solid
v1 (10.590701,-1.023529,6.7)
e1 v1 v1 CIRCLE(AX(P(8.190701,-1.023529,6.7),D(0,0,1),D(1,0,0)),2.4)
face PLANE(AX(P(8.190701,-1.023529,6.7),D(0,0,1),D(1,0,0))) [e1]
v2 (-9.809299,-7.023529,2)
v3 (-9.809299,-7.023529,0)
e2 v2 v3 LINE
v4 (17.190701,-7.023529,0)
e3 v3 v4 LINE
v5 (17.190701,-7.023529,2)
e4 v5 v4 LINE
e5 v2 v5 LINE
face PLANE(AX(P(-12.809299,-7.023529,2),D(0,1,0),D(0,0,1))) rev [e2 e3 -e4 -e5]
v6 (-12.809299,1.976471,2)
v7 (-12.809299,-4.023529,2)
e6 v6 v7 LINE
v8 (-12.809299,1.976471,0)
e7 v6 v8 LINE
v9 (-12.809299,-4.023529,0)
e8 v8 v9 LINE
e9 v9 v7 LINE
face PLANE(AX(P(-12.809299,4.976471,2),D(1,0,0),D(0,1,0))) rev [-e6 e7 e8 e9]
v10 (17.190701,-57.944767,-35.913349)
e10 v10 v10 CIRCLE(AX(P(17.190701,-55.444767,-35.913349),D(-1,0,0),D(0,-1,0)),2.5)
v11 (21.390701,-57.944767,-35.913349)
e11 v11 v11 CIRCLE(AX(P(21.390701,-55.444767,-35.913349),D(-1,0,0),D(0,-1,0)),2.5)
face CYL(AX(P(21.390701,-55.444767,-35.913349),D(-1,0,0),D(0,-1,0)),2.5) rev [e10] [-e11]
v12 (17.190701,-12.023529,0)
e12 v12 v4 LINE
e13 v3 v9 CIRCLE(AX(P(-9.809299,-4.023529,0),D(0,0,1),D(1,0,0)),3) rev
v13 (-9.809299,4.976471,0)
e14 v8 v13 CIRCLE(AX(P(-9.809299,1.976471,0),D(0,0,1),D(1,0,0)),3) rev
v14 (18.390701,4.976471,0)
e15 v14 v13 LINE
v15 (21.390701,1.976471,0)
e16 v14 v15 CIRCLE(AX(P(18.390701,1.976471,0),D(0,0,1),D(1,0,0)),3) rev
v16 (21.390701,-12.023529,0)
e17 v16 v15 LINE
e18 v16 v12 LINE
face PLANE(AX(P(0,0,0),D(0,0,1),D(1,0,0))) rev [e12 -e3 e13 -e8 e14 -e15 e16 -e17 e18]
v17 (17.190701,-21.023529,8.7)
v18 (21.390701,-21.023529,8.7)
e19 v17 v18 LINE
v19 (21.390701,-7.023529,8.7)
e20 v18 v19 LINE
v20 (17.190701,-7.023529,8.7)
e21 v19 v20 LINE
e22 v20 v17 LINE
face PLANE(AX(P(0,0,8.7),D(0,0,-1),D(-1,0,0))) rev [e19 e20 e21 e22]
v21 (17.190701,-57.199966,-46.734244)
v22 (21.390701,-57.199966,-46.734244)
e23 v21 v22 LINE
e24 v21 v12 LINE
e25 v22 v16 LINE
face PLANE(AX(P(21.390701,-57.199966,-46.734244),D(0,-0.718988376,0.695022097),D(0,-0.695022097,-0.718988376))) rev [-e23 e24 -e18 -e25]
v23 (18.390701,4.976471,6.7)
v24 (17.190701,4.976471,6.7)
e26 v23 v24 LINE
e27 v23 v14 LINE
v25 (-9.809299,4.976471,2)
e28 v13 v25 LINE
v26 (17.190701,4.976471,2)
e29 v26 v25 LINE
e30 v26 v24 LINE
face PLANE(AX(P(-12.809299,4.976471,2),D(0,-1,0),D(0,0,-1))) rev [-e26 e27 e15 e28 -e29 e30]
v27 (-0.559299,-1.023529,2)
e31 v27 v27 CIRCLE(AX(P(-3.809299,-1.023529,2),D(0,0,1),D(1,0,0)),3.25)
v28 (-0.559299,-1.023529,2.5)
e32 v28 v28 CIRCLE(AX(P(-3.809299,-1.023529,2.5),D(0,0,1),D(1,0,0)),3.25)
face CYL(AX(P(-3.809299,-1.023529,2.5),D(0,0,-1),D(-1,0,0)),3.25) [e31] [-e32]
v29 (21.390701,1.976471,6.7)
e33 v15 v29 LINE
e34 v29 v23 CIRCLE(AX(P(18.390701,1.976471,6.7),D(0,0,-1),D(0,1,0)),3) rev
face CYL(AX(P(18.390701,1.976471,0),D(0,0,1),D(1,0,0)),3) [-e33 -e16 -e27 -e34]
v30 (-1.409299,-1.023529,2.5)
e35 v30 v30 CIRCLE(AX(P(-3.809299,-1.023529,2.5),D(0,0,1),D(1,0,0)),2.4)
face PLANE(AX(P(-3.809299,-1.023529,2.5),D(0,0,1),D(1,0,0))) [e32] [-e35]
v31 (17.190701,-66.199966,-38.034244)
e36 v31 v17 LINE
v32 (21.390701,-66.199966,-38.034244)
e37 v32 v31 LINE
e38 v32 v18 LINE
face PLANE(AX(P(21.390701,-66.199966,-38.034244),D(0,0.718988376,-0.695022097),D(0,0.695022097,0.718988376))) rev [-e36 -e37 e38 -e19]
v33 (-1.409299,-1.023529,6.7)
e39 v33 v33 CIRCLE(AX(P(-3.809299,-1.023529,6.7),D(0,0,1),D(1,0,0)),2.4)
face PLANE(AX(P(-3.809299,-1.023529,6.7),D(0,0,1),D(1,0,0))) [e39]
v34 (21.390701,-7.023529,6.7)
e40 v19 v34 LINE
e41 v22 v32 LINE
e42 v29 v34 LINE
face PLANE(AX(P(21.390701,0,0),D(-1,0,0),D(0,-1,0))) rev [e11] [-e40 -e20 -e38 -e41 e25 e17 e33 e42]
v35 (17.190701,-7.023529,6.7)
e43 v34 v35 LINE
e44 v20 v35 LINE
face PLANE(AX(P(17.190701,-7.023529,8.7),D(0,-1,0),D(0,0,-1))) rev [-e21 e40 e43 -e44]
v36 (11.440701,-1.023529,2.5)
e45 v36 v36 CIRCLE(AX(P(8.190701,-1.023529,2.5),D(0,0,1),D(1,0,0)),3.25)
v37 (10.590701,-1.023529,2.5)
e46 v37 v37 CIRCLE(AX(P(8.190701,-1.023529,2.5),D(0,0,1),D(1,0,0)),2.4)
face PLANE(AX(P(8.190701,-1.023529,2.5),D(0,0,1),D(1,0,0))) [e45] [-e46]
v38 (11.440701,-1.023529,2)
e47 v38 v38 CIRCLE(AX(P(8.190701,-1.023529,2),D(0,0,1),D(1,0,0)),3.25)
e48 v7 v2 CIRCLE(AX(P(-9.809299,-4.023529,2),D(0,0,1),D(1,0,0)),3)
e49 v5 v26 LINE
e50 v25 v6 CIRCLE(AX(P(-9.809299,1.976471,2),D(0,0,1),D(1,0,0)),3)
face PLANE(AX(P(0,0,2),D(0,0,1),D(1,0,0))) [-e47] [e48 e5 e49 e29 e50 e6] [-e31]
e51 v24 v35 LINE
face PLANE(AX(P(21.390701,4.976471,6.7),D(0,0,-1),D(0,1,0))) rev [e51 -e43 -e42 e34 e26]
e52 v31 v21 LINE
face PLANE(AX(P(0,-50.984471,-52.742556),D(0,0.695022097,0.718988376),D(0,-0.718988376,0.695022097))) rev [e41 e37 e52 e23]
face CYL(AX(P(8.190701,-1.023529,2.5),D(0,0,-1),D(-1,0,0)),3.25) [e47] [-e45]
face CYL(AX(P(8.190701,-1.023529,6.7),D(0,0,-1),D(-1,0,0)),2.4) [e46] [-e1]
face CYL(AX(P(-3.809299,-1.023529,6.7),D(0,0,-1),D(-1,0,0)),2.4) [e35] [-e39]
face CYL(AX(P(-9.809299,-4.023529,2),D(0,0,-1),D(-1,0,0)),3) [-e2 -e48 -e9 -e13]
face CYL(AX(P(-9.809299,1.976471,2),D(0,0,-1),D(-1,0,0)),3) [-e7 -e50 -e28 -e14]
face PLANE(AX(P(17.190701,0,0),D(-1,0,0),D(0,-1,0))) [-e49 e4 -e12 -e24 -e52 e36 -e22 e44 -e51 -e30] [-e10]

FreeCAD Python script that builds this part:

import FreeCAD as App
import Part
import Sketcher

V = App.Vector
Q = App.Units.Quantity


def edges_at(feature, points):
    """Names of the edges that pass closest to the given points."""
    edges = feature.Shape.Edges
    near = lambda p: min(range(len(edges)), key=lambda i: edges[i].distToShape(Part.Vertex(*p))[0])
    return sorted({f"Edge{near(p) + 1}" for p in points})


def add_polygon(sketch, points):
    """Adds a closed chain of lines whose ends are joined by coincident constraints."""
    first, n = sketch.GeometryCount, len(points)
    for a, b in zip(points, points[1:] + points[:1]):
        sketch.addGeometry(Part.LineSegment(App.Vector(*a, 0), App.Vector(*b, 0)), False)
    for i in range(n):
        sketch.addConstraint(Sketcher.Constraint("Coincident", first + i, 2, first + (i + 1) % n, 1))

doc = App.newDocument("Part")
body = doc.addObject("PartDesign::Body", "Body")

sketch1 = body.newObject("Sketcher::SketchObject", "Sketch")
sketch1.AttachmentSupport = (doc.getObject("XY_Plane"), [""])
sketch1.MapMode = "FlatFace"
add_polygon(sketch1, [(-13, 5), (-13, -7), (17, -7), (17, 5)])
sketch1.addConstraint(Sketcher.Constraint("Vertical", 0))
sketch1.addConstraint(Sketcher.Constraint("Horizontal", 1))
sketch1.addConstraint(Sketcher.Constraint("Vertical", 2))
sketch1.addConstraint(Sketcher.Constraint("Horizontal", 3))
sketch1.addConstraint(Sketcher.Constraint("DistanceX", 1, 1, 1, 2, Q("30 mm")))
sketch1.addConstraint(Sketcher.Constraint("DistanceY", 0, 2, 0, 1, Q("12 mm")))
sketch1.addConstraint(Sketcher.Constraint("DistanceX", 0, 2, -1, 1, Q("12.809299 mm")))
sketch1.addConstraint(Sketcher.Constraint("DistanceY", 0, 2, -1, 1, Q("7.023529 mm")))
pad1 = body.newObject("PartDesign::Pad", "Pad")
pad1.Profile = sketch1
pad1.Length = 2

sketch2 = body.newObject("Sketcher::SketchObject", "Sketch001")
sketch2.AttachmentSupport = (doc.getObject("XY_Plane"), [""])
sketch2.MapMode = "FlatFace"
sketch2.AttachmentOffset = App.Placement(V(0, 0, 2), App.Rotation())
sketch2.addGeometry(Part.Circle(V(8.2, -1, 0), V(0, 0, 1), 3.2), False)
sketch2.addGeometry(Part.Circle(V(-3.8, -1, 0), V(0, 0, 1), 3.2), False)
sketch2.addConstraint(Sketcher.Constraint("Equal", 0, 1))
sketch2.addConstraint(Sketcher.Constraint("Horizontal", 0, 3, 1, 3))
sketch2.addConstraint(Sketcher.Constraint("Diameter", 0, Q("6.5 mm")))
sketch2.addConstraint(Sketcher.Constraint("DistanceX", 1, 3, 0, 3, Q("12 mm")))
sketch2.addConstraint(Sketcher.Constraint("DistanceX", -1, 1, 0, 3, Q("8.190701 mm")))
sketch2.addConstraint(Sketcher.Constraint("DistanceY", 0, 3, -1, 1, Q("1.023529 mm")))
pad2 = body.newObject("PartDesign::Pad", "Pad001")
pad2.Profile = sketch2
pad2.Length = 0.5

sketch3 = body.newObject("Sketcher::SketchObject", "Sketch002")
sketch3.AttachmentSupport = (doc.getObject("XY_Plane"), [""])
sketch3.MapMode = "FlatFace"
sketch3.AttachmentOffset = App.Placement(V(0, 0, 2.5), App.Rotation())
sketch3.addGeometry(Part.Circle(V(-3.8, -1, 0), V(0, 0, 1), 2.4), False)
sketch3.addGeometry(Part.Circle(V(8.2, -1, 0), V(0, 0, 1), 2.4), False)
sketch3.addConstraint(Sketcher.Constraint("Equal", 0, 1))
sketch3.addConstraint(Sketcher.Constraint("Horizontal", 0, 3, 1, 3))
sketch3.addConstraint(Sketcher.Constraint("Diameter", 0, Q("4.8 mm")))
sketch3.addConstraint(Sketcher.Constraint("DistanceX", 0, 3, 1, 3, Q("12 mm")))
sketch3.addConstraint(Sketcher.Constraint("DistanceX", 0, 3, -1, 1, Q("3.809299 mm")))
sketch3.addConstraint(Sketcher.Constraint("DistanceY", 0, 3, -1, 1, Q("1.023529 mm")))
pad3 = body.newObject("PartDesign::Pad", "Pad002")
pad3.Profile = sketch3
pad3.Length = 4.2

sketch4 = body.newObject("Sketcher::SketchObject", "Sketch003")
sketch4.AttachmentSupport = (doc.getObject("YZ_Plane"), [""])
sketch4.MapMode = "FlatFace"
sketch4.AttachmentOffset = App.Placement(V(0, 0, 17.190701), App.Rotation())
add_polygon(sketch4, [(5, 7), (-12, 7), (-12, 0), (5, 0)])
sketch4.addConstraint(Sketcher.Constraint("Horizontal", 0))
sketch4.addConstraint(Sketcher.Constraint("Vertical", 1))
sketch4.addConstraint(Sketcher.Constraint("Horizontal", 2))
sketch4.addConstraint(Sketcher.Constraint("Vertical", 3))
sketch4.addConstraint(Sketcher.Constraint("PointOnObject", 1, 2, -1))
sketch4.addConstraint(Sketcher.Constraint("DistanceX", 0, 2, 0, 1, Q("17 mm")))
sketch4.addConstraint(Sketcher.Constraint("DistanceY", 1, 2, 1, 1, Q("6.7 mm")))
sketch4.addConstraint(Sketcher.Constraint("DistanceX", 0, 2, -1, 1, Q("12.023529 mm")))
pad4 = body.newObject("PartDesign::Pad", "Pad003")
pad4.Profile = sketch4
pad4.Length = 4.2

sketch5 = body.newObject("Sketcher::SketchObject", "Sketch004")
sketch5.AttachmentSupport = (doc.getObject("XY_Plane"), [""])
sketch5.MapMode = "FlatFace"
sketch5.AttachmentOffset = App.Placement(V(0, 0, 6.7), App.Rotation())
add_polygon(sketch5, [(17.2, -7), (17.2, -12), (21.4, -12), (21.4, -7)])
sketch5.addConstraint(Sketcher.Constraint("Vertical", 0))
sketch5.addConstraint(Sketcher.Constraint("Horizontal", 1))
sketch5.addConstraint(Sketcher.Constraint("Vertical", 2))
sketch5.addConstraint(Sketcher.Constraint("Horizontal", 3))
sketch5.addConstraint(Sketcher.Constraint("DistanceY", 0, 2, 0, 1, Q("5 mm")))
sketch5.addConstraint(Sketcher.Constraint("DistanceX", 1, 1, 1, 2, Q("4.2 mm")))
sketch5.addConstraint(Sketcher.Constraint("DistanceX", -1, 1, 0, 2, Q("17.190701 mm")))
sketch5.addConstraint(Sketcher.Constraint("DistanceY", 0, 2, -1, 1, Q("12.023529 mm")))
pad5 = body.newObject("PartDesign::Pad", "Pad004")
pad5.Profile = sketch5
pad5.Length = 2
doc.recompute()

fillet = body.newObject("PartDesign::Fillet", "Fillet")
fillet.Base = (pad5, edges_at(pad5, [(21.391, 4.976, 3.35), (-12.809, 4.976, 1), (-12.809, -7.024, 1)]))
fillet.Radius = 3

sketch6 = body.newObject("Sketcher::SketchObject", "Sketch005")
sketch6.AttachmentSupport = (doc.getObject("YZ_Plane"), [""])
sketch6.MapMode = "FlatFace"
sketch6.AttachmentOffset = App.Placement(V(0, 0, 17.190701), App.Rotation())
add_polygon(sketch6, [(-12, 9), (-21, 9), (-12, 0)])
sketch6.addConstraint(Sketcher.Constraint("Horizontal", 0))
sketch6.addConstraint(Sketcher.Constraint("Vertical", 2))
sketch6.addConstraint(Sketcher.Constraint("PointOnObject", 1, 2, -1))
sketch6.addConstraint(Sketcher.Constraint("DistanceX", 0, 2, 0, 1, Q("9 mm")))
sketch6.addConstraint(Sketcher.Constraint("DistanceY", 2, 1, 2, 2, Q("8.7 mm")))
sketch6.addConstraint(Sketcher.Constraint("DistanceX", 0, 2, -1, 1, Q("21.023529 mm")))
pad6 = body.newObject("PartDesign::Pad", "Pad005")
pad6.Profile = sketch6
pad6.Length = 4.2

sketch7 = body.newObject("Sketcher::SketchObject", "Sketch006")
sketch7.Placement = App.Placement(V(0, -5.808035, -6.008312), App.Rotation(V(1, 0, 0), V(0, -0.718988376, 0.695022097), V(0, -0.695022097, -0.718988376), "ZXY"))
add_polygon(sketch7, [(17.2, 21.2), (17.2, 8.6), (21.4, 8.6), (21.4, 21.2)])
sketch7.addConstraint(Sketcher.Constraint("Vertical", 0))
sketch7.addConstraint(Sketcher.Constraint("Horizontal", 1))
sketch7.addConstraint(Sketcher.Constraint("Vertical", 2))
sketch7.addConstraint(Sketcher.Constraint("Horizontal", 3))
sketch7.addConstraint(Sketcher.Constraint("DistanceX", 1, 1, 1, 2, Q("4.2 mm")))
sketch7.addConstraint(Sketcher.Constraint("DistanceX", -1, 1, 0, 2, Q("17.190701 mm")))
sketch7.addConstraint(Sketcher.Constraint("DistanceY", 0, 2, 0, 1, Q("12.517588 mm")))
sketch7.addConstraint(Sketcher.Constraint("DistanceY", -1, 1, 0, 2, Q("8.644778 mm")))
pad7 = body.newObject("PartDesign::Pad", "Pad006")
pad7.Profile = sketch7
pad7.Length = 65

sketch8 = body.newObject("Sketcher::SketchObject", "Sketch007")
sketch8.AttachmentSupport = (doc.getObject("YZ_Plane"), [""])
sketch8.MapMode = "FlatFace"
sketch8.AttachmentOffset = App.Placement(V(0, 0, 17.190701), App.Rotation())
sketch8.addGeometry(Part.Circle(V(-55.4, -35.9, 0), V(0, 0, 1), 2.5), False)
sketch8.addConstraint(Sketcher.Constraint("Diameter", 0, Q("5 mm")))
sketch8.addConstraint(Sketcher.Constraint("DistanceY", 0, 3, -1, 1, Q("35.913349 mm")))
sketch8.addConstraint(Sketcher.Constraint("DistanceX", 0, 3, -1, 1, Q("55.444767 mm")))
pocket1 = body.newObject("PartDesign::Pocket", "Pocket")
pocket1.Profile = sketch8
pocket1.Length = 4.2
pocket1.Reversed = True

doc.recompute()
